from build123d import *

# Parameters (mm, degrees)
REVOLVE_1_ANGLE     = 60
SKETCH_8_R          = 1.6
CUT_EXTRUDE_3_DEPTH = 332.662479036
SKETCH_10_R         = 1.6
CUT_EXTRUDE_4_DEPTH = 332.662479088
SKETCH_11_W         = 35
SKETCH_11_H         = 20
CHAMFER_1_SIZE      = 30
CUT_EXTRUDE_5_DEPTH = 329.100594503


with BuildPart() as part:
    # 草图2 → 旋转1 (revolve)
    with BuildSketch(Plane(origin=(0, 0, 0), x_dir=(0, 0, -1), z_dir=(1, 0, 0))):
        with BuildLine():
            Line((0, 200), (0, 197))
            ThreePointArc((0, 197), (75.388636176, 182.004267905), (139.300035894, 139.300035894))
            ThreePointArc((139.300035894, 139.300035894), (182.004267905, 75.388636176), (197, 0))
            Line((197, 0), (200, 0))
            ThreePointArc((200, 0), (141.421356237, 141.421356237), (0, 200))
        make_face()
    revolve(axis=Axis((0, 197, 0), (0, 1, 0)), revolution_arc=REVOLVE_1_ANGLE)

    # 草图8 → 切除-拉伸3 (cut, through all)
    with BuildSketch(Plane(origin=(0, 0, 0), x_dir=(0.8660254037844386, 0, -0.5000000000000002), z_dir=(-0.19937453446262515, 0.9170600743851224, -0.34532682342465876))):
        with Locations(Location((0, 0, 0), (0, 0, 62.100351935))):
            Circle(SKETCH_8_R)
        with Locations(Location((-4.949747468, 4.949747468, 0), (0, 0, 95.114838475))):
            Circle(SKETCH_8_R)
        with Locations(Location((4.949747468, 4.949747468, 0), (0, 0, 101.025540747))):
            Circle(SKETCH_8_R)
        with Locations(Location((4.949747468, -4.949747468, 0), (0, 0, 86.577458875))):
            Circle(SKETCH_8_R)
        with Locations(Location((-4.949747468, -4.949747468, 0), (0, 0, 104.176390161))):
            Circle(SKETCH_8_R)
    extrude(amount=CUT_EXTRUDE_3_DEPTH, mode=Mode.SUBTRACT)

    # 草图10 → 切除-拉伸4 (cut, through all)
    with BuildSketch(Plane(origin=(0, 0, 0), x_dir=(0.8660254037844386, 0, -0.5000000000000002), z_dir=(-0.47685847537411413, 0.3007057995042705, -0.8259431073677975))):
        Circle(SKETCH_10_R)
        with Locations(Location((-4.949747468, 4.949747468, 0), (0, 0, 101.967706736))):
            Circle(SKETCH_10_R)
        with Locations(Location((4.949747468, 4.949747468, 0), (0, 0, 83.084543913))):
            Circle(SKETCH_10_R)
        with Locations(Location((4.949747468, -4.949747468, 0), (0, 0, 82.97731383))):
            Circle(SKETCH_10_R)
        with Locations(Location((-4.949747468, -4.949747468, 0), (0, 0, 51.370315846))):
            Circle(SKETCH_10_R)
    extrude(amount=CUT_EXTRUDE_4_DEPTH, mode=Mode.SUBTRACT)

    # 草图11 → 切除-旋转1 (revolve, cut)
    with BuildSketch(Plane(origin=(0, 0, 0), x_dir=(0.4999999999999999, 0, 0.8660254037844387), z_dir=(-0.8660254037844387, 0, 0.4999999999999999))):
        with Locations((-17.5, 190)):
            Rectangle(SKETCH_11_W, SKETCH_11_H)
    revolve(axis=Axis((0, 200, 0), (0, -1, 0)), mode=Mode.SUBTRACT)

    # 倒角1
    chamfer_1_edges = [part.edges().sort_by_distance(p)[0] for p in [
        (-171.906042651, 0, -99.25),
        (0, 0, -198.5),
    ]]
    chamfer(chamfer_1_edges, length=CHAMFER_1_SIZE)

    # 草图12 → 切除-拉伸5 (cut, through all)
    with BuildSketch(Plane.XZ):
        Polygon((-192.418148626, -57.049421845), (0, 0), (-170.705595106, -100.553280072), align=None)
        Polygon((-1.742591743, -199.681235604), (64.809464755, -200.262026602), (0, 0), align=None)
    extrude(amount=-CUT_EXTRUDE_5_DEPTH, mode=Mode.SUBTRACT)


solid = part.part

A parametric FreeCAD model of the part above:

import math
import FreeCAD as App
import Part
import Sketcher
Q = App.Units.Quantity


def edges_at(feature, points):
    """Names of the edges that pass closest to the given points."""
    edges = feature.Shape.Edges
    near = lambda p: min(range(len(edges)), key=lambda i: edges[i].distToShape(Part.Vertex(*p))[0])
    return sorted({f"Edge{near(p) + 1}" for p in points})


def add_polygon(sketch, points):
    """Adds a closed chain of lines whose ends are joined by coincident constraints."""
    first, n = sketch.GeometryCount, len(points)
    for a, b in zip(points, points[1:] + points[:1]):
        sketch.addGeometry(Part.LineSegment(App.Vector(*a, 0), App.Vector(*b, 0)), False)
    for i in range(n):
        sketch.addConstraint(Sketcher.Constraint("Coincident", first + i, 2, first + (i + 1) % n, 1))

doc = App.newDocument("Part")
params = doc.addObject("Spreadsheet::Sheet", "Params")
for row, (alias, value) in enumerate([
    ("sketch1_radius", "197 mm"),
    ("sketch1_radius2", "200 mm"),
    ("revolution_angle", "60 deg"),
    ("sketch2_diameter", "3.2 mm"),
    ("sketch3_diameter", "3.2 mm"),
    ("sketch4_width", "35 mm"),
    ("sketch4_height", "20 mm"),
    ("groove_angle", "360 deg"),
    ("chamfer_size", "30 mm"),
], start=1):
    params.set(f"A{row}", alias)
    params.set(f"B{row}", "=" + value)
    params.setAlias(f"B{row}", alias)

body = doc.addObject("PartDesign::Body", "Body")

# Sketch on YZ plane
sketch1 = body.newObject("Sketcher::SketchObject", "Sketch")
sketch1.AttachmentSupport = (doc.getObject("YZ_Plane"), [""])
sketch1.MapMode = "FlatFace"
sketch1.addGeometry([
    Part.LineSegment(App.Vector(200, 0, 0), App.Vector(197, 0, 0)),  # 0
    Part.ArcOfCircle(Part.Circle(App.Vector(0, 0, 0), App.Vector(0, 0, 1), 197), math.radians(-45), math.radians(0)),  # 1
    Part.ArcOfCircle(Part.Circle(App.Vector(0, 0, 0), App.Vector(0, 0, 1), 197), math.radians(-90), math.radians(-45)),  # 2
    Part.LineSegment(App.Vector(0, -197, 0), App.Vector(0, -200, 0)),  # 3
    Part.ArcOfCircle(Part.Circle(App.Vector(0, 0, 0), App.Vector(0, 0, 1), 200), math.radians(-90), math.radians(0)),  # 4
], False)
sketch1.addConstraint([
    Sketcher.Constraint("Coincident", 0, 2, 1, 2),
    Sketcher.Constraint("Tangent", 1, 1, 2, 2),
    Sketcher.Constraint("Coincident", 2, 1, 3, 1),
    Sketcher.Constraint("Coincident", 3, 2, 4, 1),
    Sketcher.Constraint("Coincident", 4, 2, 0, 1),
    Sketcher.Constraint("Horizontal", 0),
    Sketcher.Constraint("Vertical", 3),
    Sketcher.Constraint("Coincident", 1, 3, -1, 1),
    Sketcher.Constraint("Coincident", 4, 3, -1, 1),
    Sketcher.Constraint("Equal", 1, 2),
    Sketcher.Constraint("PointOnObject", 0, 2, -1),
    Sketcher.Constraint("PointOnObject", 2, 1, -2),
    Sketcher.Constraint("Radius", 1, Q("197 mm")),
    Sketcher.Constraint("Radius", 4, Q("200 mm")),
    Sketcher.Constraint("DistanceX", -1, 1, 1, 1, Q("139.300036 mm")),
])
sketch1.setExpression("Constraints[12]", "Params.sketch1_radius")
sketch1.setExpression("Constraints[13]", "Params.sketch1_radius2")
revolution = body.newObject("PartDesign::Revolution", "Revolution")
revolution.Profile = sketch1
revolution.ReferenceAxis = (sketch1, ["H_Axis"])
revolution.setExpression("Angle", "Params.revolution_angle")

# Sketch on an angled plane
sketch2 = body.newObject("Sketcher::SketchObject", "Sketch001")
sketch2.Placement = App.Placement(App.Vector(0, 0, 0), App.Rotation(App.Vector(0.866025404, 0, -0.5), App.Vector(-0.458530037, -0.398749068, -0.794197321), App.Vector(-0.199374534, 0.917060074, -0.345326823), "ZXY"))
sketch2.addGeometry([
    Part.Circle(App.Vector(0, 0, 0), App.Vector(0, 0, 1), 1.6),  # 0
    Part.Circle(App.Vector(-4.9, 4.9, 0), App.Vector(0, 0, 1), 1.6),  # 1
    Part.Circle(App.Vector(4.9, 4.9, 0), App.Vector(0, 0, 1), 1.6),  # 2
    Part.Circle(App.Vector(4.9, -4.9, 0), App.Vector(0, 0, 1), 1.6),  # 3
    Part.Circle(App.Vector(-4.9, -4.9, 0), App.Vector(0, 0, 1), 1.6),  # 4
], False)
sketch2.addConstraint([
    Sketcher.Constraint("Coincident", 0, 3, -1, 1),
    Sketcher.Constraint("Equal", 0, 1),
    Sketcher.Constraint("Equal", 1, 2),
    Sketcher.Constraint("Equal", 2, 3),
    Sketcher.Constraint("Equal", 3, 4),
    Sketcher.Constraint("Symmetric", 1, 3, 3, 3, -1, 1),
    Sketcher.Constraint("Symmetric", 2, 3, 4, 3, -1, 1),
    Sketcher.Constraint("Symmetric", 1, 3, 2, 3, -2),
    Sketcher.Constraint("Diameter", 0, Q("3.2 mm")),
    Sketcher.Constraint("DistanceX", 1, 3, -1, 1, Q("4.949747 mm")),
    Sketcher.Constraint("DistanceY", -1, 1, 1, 3, Q("4.949747 mm")),
])
sketch2.setExpression("Constraints[8]", "Params.sketch2_diameter")
pocket1 = body.newObject("PartDesign::Pocket", "Pocket")
pocket1.Profile = sketch2
pocket1.Type = "ThroughAll"
pocket1.Reversed = True

# Sketch on an angled plane
sketch3 = body.newObject("Sketcher::SketchObject", "Sketch002")
sketch3.Placement = App.Placement(App.Vector(0, 0, 0), App.Rotation(App.Vector(0.866025404, 0, -0.5), App.Vector(-0.1503529, -0.95371695, -0.260418862), App.Vector(-0.476858475, 0.3007058, -0.825943107), "ZXY"))
sketch3.addGeometry([
    Part.Circle(App.Vector(0, 0, 0), App.Vector(0, 0, 1), 1.6),  # 0
    Part.Circle(App.Vector(-4.9, 4.9, 0), App.Vector(0, 0, 1), 1.6),  # 1
    Part.Circle(App.Vector(4.9, 4.9, 0), App.Vector(0, 0, 1), 1.6),  # 2
    Part.Circle(App.Vector(4.9, -4.9, 0), App.Vector(0, 0, 1), 1.6),  # 3
    Part.Circle(App.Vector(-4.9, -4.9, 0), App.Vector(0, 0, 1), 1.6),  # 4
], False)
sketch3.addConstraint([
    Sketcher.Constraint("Coincident", 0, 3, -1, 1),
    Sketcher.Constraint("Equal", 0, 1),
    Sketcher.Constraint("Equal", 1, 2),
    Sketcher.Constraint("Equal", 2, 3),
    Sketcher.Constraint("Equal", 3, 4),
    Sketcher.Constraint("Symmetric", 1, 3, 3, 3, -1, 1),
    Sketcher.Constraint("Symmetric", 2, 3, 4, 3, -1, 1),
    Sketcher.Constraint("Symmetric", 1, 3, 2, 3, -2),
    Sketcher.Constraint("Diameter", 0, Q("3.2 mm")),
    Sketcher.Constraint("DistanceX", 1, 3, -1, 1, Q("4.949747 mm")),
    Sketcher.Constraint("DistanceY", -1, 1, 1, 3, Q("4.949747 mm")),
])
sketch3.setExpression("Constraints[8]", "Params.sketch3_diameter")
pocket2 = body.newObject("PartDesign::Pocket", "Pocket001")
pocket2.Profile = sketch3
pocket2.Type = "ThroughAll"
pocket2.Reversed = True

# Sketch on an angled plane
sketch4 = body.newObject("Sketcher::SketchObject", "Sketch003")
sketch4.Placement = App.Placement(App.Vector(0, 0, 0), App.Rotation(App.Vector(0.5, 0, 0.866025404), App.Vector(0, 1, 0), App.Vector(-0.866025404, 0, 0.5), "ZXY"))
add_polygon(sketch4, [(-35, 200), (-35, 180), (0, 180), (0, 200)])  # lines 0-3
sketch4.addConstraint([
    Sketcher.Constraint("Vertical", 0),
    Sketcher.Constraint("Horizontal", 1),
    Sketcher.Constraint("Vertical", 2),
    Sketcher.Constraint("Horizontal", 3),
    Sketcher.Constraint("PointOnObject", 1, 2, -2),
    Sketcher.Constraint("DistanceX", 1, 1, 1, 2, Q("35 mm")),
    Sketcher.Constraint("DistanceY", 0, 2, 0, 1, Q("20 mm")),
    Sketcher.Constraint("DistanceY", -1, 1, 0, 2, Q("180 mm")),
])
sketch4.setExpression("Constraints[9]", "Params.sketch4_width")
sketch4.setExpression("Constraints[10]", "Params.sketch4_height")
groove = body.newObject("PartDesign::Groove", "Groove")
groove.Profile = sketch4
groove.ReferenceAxis = (sketch4, ["V_Axis"])
groove.setExpression("Angle", "Params.groove_angle")
doc.recompute()

chamfer = body.newObject("PartDesign::Chamfer", "Chamfer")
chamfer.Base = (groove, edges_at(groove, [(-171.906, 0, -99.25), (0, 0, -198.5)]))
chamfer.setExpression("Size", "Params.chamfer_size")

# Sketch on XZ plane
sketch5 = body.newObject("Sketcher::SketchObject", "Sketch004")
sketch5.AttachmentSupport = (doc.getObject("XZ_Plane"), [""])
sketch5.MapMode = "FlatFace"
add_polygon(sketch5, [(0, 0), (-192, -57), (-171, -101)])  # lines 0-2
add_polygon(sketch5, [(-2, -200), (65, -200), (0, 0)])  # lines 3-5
sketch5.addConstraint([
    Sketcher.Constraint("Coincident", 2, 2, -1, 1),
    Sketcher.Constraint("Coincident", 4, 2, -1, 1),
    Sketcher.Constraint("Perpendicular", 3, 5),
    Sketcher.Constraint("Angle", 2, Q("30.5 deg")),
    Sketcher.Constraint("Angle", 3, Q("-0.5 deg")),
    Sketcher.Constraint("Distance", 3, Q("66.554591 mm")),
    Sketcher.Constraint("Distance", 5, Q("199.688839 mm")),
    Sketcher.Constraint("DistanceX", 0, 2, -1, 1, Q("192.418149 mm")),
    Sketcher.Constraint("DistanceY", 0, 2, -1, 1, Q("57.049422 mm")),
    Sketcher.Constraint("DistanceY", 1, 2, -1, 1, Q("100.55328 mm")),
])
pocket3 = body.newObject("PartDesign::Pocket", "Pocket002")
pocket3.Profile = sketch5
pocket3.Type = "ThroughAll"

doc.recompute()
